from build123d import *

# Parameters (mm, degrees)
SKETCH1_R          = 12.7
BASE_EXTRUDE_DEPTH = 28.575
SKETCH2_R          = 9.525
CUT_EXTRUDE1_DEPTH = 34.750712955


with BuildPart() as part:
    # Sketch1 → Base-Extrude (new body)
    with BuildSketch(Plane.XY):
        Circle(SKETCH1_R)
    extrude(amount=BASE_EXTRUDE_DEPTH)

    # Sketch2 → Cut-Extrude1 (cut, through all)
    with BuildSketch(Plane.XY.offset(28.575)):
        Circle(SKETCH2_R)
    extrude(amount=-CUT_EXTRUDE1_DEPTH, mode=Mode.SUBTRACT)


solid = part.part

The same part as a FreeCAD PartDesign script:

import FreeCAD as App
import Part
import Sketcher
from FreeCAD import Vector
Q = App.Units.Quantity

doc = App.newDocument("Part")
params = doc.addObject("Spreadsheet::Sheet", "Params")
for row, (alias, value) in enumerate([
    ("sketch1_diameter", "1 in"),
    ("pad1_length", "1.125 in"),
    ("sketch2_diameter", "0.75 in"),
], start=1):
    params.set(f"A{row}", alias)
    params.set(f"B{row}", "=" + value)
    params.setAlias(f"B{row}", alias)

body = doc.addObject("PartDesign::Body", "Body")

# Sketch on XY plane
sketch1 = body.newObject("Sketcher::SketchObject", "Sketch")
sketch1.AttachmentSupport = (doc.getObject("XY_Plane"), [""])
sketch1.MapMode = "FlatFace"
sketch1.addGeometry(Part.Circle(Vector(0, 0, 0), Vector(0, 0, 1), 12.7), False)
sketch1.addConstraint(Sketcher.Constraint("Coincident", 0, 3, -1, 1))
sketch1.addConstraint(Sketcher.Constraint("Diameter", 0, Q("1 in")))
sketch1.setExpression("Constraints[1]", "Params.sketch1_diameter")
pad1 = body.newObject("PartDesign::Pad", "Pad")
pad1.Profile = sketch1
pad1.setExpression("Length", "Params.pad1_length")

# Sketch on XY plane
sketch2 = body.newObject("Sketcher::SketchObject", "Sketch001")
sketch2.AttachmentSupport = (doc.getObject("XY_Plane"), [""])
sketch2.MapMode = "FlatFace"
sketch2.AttachmentOffset = App.Placement(Vector(0, 0, 1.125 * 25.4), App.Rotation())
sketch2.addGeometry(Part.Circle(Vector(0, 0, 0), Vector(0, 0, 1), 9.525), False)
sketch2.addConstraint(Sketcher.Constraint("Coincident", 0, 3, -1, 1))
sketch2.addConstraint(Sketcher.Constraint("Diameter", 0, Q("0.75 in")))
sketch2.setExpression("Constraints[1]", "Params.sketch2_diameter")
pocket1 = body.newObject("PartDesign::Pocket", "Pocket")
pocket1.Profile = sketch2
pocket1.Type = "ThroughAll"

doc.recompute()
